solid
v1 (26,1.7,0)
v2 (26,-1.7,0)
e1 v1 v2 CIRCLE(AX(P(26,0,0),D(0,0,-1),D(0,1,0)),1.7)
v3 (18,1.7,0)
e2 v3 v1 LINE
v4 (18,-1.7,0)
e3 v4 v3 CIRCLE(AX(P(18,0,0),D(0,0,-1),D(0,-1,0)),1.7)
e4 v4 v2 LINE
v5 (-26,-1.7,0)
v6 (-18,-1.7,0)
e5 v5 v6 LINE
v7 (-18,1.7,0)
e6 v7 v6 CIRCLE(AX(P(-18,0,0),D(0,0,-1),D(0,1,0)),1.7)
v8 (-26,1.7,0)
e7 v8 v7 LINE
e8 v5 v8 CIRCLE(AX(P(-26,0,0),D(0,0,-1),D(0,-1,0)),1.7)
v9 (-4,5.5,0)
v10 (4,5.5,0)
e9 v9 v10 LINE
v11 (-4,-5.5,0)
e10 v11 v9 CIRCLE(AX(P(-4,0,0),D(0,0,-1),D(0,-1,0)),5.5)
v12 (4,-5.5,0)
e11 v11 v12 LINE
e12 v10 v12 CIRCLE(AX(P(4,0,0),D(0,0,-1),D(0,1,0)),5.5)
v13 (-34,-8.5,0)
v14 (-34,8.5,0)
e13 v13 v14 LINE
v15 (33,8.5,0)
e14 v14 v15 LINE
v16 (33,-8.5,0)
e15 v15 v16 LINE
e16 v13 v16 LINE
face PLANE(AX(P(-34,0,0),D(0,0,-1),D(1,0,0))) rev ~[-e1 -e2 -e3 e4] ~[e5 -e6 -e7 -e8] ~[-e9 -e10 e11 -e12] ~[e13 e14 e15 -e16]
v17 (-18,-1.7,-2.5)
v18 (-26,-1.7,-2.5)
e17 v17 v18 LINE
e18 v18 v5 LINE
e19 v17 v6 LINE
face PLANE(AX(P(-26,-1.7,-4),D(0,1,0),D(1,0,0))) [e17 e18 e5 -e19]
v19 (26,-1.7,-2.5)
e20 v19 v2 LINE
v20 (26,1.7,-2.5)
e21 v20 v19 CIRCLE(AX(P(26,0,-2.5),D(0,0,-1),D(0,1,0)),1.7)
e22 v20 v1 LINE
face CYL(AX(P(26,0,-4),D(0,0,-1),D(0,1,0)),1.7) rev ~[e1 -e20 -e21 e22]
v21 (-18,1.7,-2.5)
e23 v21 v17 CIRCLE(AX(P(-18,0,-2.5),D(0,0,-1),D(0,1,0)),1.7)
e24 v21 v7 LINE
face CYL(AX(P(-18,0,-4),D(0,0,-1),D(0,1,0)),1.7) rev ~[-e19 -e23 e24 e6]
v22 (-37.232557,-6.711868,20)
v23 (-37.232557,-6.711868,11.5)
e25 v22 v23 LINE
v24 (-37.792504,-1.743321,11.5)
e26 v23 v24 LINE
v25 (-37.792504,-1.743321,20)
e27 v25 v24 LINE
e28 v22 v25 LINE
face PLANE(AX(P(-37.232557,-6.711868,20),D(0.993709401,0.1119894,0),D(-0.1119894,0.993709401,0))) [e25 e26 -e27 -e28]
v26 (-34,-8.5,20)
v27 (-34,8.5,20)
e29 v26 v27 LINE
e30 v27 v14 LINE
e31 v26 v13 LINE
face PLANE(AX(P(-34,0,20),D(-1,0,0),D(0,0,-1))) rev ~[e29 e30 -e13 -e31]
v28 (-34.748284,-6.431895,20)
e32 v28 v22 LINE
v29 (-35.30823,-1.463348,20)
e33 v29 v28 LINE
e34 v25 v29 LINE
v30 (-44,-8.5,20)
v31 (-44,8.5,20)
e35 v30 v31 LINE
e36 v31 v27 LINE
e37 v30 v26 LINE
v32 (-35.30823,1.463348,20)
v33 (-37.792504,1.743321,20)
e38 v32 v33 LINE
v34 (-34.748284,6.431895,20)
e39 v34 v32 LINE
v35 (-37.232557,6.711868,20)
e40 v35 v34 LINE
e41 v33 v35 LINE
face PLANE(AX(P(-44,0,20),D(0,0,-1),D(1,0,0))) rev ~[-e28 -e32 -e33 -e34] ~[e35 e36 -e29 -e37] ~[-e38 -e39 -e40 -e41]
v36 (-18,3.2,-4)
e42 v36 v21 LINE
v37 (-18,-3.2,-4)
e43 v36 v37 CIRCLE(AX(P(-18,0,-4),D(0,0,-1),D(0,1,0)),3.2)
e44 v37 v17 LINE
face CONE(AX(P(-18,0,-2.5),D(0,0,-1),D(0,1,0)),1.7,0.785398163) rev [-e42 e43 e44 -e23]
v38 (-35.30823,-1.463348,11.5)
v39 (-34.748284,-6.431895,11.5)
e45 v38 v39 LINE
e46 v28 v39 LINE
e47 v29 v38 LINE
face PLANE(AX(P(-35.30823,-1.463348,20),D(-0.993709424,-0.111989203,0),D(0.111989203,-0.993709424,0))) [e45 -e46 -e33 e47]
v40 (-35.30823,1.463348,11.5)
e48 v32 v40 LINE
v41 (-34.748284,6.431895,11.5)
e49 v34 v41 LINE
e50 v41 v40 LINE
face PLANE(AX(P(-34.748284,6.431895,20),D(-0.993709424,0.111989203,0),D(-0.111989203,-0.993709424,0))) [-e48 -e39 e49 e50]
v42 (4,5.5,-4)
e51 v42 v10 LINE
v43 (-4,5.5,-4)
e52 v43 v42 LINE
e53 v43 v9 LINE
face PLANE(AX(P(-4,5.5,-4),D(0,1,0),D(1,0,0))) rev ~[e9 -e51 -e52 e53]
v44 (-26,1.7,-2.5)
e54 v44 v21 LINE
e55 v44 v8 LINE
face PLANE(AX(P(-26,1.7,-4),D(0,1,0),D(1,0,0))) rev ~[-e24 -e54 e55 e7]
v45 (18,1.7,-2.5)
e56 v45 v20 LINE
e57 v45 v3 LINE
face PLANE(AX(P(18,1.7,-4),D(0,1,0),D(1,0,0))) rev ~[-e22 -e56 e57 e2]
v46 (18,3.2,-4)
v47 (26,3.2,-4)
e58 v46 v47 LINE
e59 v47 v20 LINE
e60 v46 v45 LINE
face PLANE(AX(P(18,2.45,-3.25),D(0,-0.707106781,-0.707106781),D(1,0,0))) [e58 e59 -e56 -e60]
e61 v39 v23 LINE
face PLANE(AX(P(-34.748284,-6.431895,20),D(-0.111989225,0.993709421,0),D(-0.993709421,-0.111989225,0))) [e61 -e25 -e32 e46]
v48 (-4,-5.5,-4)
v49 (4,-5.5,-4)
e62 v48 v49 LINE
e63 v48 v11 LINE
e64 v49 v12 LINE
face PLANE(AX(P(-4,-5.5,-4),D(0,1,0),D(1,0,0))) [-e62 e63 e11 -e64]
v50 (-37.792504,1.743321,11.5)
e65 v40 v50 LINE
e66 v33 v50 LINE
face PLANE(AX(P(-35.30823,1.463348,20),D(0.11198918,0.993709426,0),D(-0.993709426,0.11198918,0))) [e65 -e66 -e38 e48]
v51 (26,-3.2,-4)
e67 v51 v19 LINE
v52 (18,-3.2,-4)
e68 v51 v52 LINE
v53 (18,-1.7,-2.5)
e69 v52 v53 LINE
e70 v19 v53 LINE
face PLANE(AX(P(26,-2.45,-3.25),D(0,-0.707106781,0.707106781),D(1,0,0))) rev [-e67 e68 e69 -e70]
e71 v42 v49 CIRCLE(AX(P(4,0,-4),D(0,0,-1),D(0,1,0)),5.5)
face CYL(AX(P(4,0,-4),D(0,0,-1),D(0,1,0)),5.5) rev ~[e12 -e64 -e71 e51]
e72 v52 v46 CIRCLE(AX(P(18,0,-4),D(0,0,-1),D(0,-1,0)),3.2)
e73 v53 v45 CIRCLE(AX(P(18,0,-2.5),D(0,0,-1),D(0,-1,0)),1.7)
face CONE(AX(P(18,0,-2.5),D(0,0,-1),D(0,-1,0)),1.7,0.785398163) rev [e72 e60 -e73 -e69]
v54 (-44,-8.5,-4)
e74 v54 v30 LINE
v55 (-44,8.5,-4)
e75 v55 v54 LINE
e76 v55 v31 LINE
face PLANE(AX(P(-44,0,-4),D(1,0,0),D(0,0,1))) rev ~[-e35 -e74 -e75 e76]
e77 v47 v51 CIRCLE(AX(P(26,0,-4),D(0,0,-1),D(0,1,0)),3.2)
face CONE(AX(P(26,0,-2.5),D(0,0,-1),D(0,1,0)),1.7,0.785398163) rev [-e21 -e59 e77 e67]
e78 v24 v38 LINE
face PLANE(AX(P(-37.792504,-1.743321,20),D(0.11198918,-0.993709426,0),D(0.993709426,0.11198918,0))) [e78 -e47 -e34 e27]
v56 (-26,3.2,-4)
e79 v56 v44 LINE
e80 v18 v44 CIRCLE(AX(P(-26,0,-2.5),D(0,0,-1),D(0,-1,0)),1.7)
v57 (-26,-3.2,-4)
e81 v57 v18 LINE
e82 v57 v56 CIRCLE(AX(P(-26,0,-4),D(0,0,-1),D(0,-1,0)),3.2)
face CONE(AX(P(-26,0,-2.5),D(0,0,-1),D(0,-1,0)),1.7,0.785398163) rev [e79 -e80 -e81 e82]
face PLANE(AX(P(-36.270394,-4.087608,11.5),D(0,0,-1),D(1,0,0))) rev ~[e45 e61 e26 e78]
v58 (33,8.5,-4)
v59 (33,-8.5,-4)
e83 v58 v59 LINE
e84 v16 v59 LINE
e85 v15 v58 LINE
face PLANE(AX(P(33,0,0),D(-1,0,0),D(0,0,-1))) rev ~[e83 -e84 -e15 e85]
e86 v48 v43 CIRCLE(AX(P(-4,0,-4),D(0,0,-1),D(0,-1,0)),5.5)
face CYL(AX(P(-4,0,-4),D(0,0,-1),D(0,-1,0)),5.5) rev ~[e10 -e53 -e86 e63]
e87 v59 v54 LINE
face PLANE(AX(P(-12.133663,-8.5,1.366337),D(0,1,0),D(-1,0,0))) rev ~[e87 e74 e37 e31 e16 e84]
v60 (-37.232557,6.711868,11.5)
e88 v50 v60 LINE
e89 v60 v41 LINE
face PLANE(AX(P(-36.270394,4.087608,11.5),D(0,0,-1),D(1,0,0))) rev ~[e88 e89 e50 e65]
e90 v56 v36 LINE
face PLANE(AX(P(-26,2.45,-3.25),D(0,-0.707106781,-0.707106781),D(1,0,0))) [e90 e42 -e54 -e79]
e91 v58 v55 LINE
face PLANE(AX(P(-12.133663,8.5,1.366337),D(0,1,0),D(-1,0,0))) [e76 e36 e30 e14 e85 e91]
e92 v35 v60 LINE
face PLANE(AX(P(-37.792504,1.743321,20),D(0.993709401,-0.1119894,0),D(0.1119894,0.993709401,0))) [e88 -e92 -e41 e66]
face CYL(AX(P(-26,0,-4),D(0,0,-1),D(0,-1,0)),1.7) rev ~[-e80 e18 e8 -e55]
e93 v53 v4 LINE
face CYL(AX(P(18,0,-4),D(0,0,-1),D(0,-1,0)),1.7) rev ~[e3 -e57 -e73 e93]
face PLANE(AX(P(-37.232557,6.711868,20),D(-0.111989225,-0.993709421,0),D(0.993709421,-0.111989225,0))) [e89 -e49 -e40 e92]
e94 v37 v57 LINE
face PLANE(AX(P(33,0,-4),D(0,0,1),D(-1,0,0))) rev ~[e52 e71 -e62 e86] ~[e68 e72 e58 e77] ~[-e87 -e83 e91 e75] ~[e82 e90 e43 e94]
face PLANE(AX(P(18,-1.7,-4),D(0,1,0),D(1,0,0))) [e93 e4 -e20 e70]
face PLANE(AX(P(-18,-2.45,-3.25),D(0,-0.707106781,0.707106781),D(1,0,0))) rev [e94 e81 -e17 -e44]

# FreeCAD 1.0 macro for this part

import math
import FreeCAD as App
import Part
import Sketcher

V = App.Vector
Q = App.Units.Quantity


def edges_at(feature, points):
    """Names of the edges that pass closest to the given points."""
    edges = feature.Shape.Edges
    near = lambda p: min(range(len(edges)), key=lambda i: edges[i].distToShape(Part.Vertex(*p))[0])
    return sorted({f"Edge{near(p) + 1}" for p in points})


def add_polygon(sketch, points):
    """Adds a closed chain of lines whose ends are joined by coincident constraints."""
    first, n = sketch.GeometryCount, len(points)
    for a, b in zip(points, points[1:] + points[:1]):
        sketch.addGeometry(Part.LineSegment(App.Vector(*a, 0), App.Vector(*b, 0)), False)
    for i in range(n):
        sketch.addConstraint(Sketcher.Constraint("Coincident", first + i, 2, first + (i + 1) % n, 1))

doc = App.newDocument("Part")
params = doc.addObject("Spreadsheet::Sheet", "Params")
for row, (alias, value) in enumerate([
    ("sketch1_width", "77 mm"),
    ("sketch1_width2", "67 mm"),
    ("sketch1_height", "24 mm"),
    ("sketch1_height2", "4 mm"),
    ("pad1_length", "17 mm"),
    ("sketch2_radius", "1.7 mm"),
    ("sketch2_radius2", "5.5 mm"),
    ("sketch2_width", "8 mm"),
    ("sketch3_length", "5 mm"),
    ("sketch3_length2", "2.499999 mm"),
    ("pocket2_length", "8.5 mm"),
    ("chamfer_size", "1.5 mm"),
    ("chamfer2_size", "1.5 mm"),
], start=1):
    params.set(f"A{row}", alias)
    params.set(f"B{row}", "=" + value)
    params.setAlias(f"B{row}", alias)

body = doc.addObject("PartDesign::Body", "Body")

# Sketch on XZ plane
sketch1 = doc.addObject("Sketcher::SketchObject", "Sketch")
body.addObject(sketch1)
sketch1.AttachmentSupport = (doc.XZ_Plane, [""])
sketch1.MapMode = "FlatFace"
add_polygon(sketch1, [(-44, 20), (-44, -4), (33, -4), (33, 0), (-34, 0), (-34, 20)])  # lines 0-5
sketch1.addConstraint([
    Sketcher.Constraint("Vertical", 0),
    Sketcher.Constraint("Horizontal", 1),
    Sketcher.Constraint("Vertical", 2),
    Sketcher.Constraint("Horizontal", 3),
    Sketcher.Constraint("Vertical", 4),
    Sketcher.Constraint("Horizontal", 5),
    Sketcher.Constraint("PointOnObject", 2, 2, -1),
    Sketcher.Constraint("DistanceX", 1, 1, 1, 2, 77.0),
    Sketcher.Constraint("DistanceX", 3, 2, 3, 1, 67.0),
    Sketcher.Constraint("DistanceY", 0, 2, 0, 1, 24.0),
    Sketcher.Constraint("DistanceY", 2, 1, 2, 2, 4.0),
    Sketcher.Constraint("DistanceX", 0, 2, -1, 1, 44.0),
])
sketch1.setExpression("Constraints[13]", "Params.sketch1_width")
sketch1.setExpression("Constraints[14]", "Params.sketch1_width2")
sketch1.setExpression("Constraints[15]", "Params.sketch1_height")
sketch1.setExpression("Constraints[16]", "Params.sketch1_height2")
pad1 = doc.addObject("PartDesign::Pad", "Pad")
body.addObject(pad1)
pad1.Profile = sketch1
pad1.setExpression("Length", "Params.pad1_length")
pad1.Midplane = True

# Sketch on XY plane
sketch2 = doc.addObject("Sketcher::SketchObject", "Sketch001")
body.addObject(sketch2)
sketch2.AttachmentSupport = (doc.XY_Plane, [""])
sketch2.MapMode = "FlatFace"
sketch2.AttachmentOffset = App.Placement(V(0, 0, -4), App.Rotation())
sketch2.addGeometry([
    Part.ArcOfCircle(Part.Circle(V(-26, 0, 0), V(0, 0, 1), 1.7), math.radians(90), math.radians(270)),  # 0
    Part.LineSegment(V(-26, 1.7, 0), V(-18, 1.7, 0)),  # 1
    Part.ArcOfCircle(Part.Circle(V(-18, 0, 0), V(0, 0, 1), 1.7), math.radians(-90), math.radians(90)),  # 2
    Part.LineSegment(V(-18, -1.7, 0), V(-26, -1.7, 0)),  # 3
    Part.ArcOfCircle(Part.Circle(V(-4, 0, 0), V(0, 0, 1), 5.5), math.radians(90), math.radians(270)),  # 4
    Part.LineSegment(V(-4, 5.5, 0), V(4, 5.5, 0)),  # 5
    Part.ArcOfCircle(Part.Circle(V(4, 0, 0), V(0, 0, 1), 5.5), math.radians(-90), math.radians(90)),  # 6
    Part.LineSegment(V(4, -5.5, 0), V(-4, -5.5, 0)),  # 7
    Part.ArcOfCircle(Part.Circle(V(18, 0, 0), V(0, 0, 1), 1.7), math.radians(90), math.radians(270)),  # 8
    Part.LineSegment(V(18, 1.7, 0), V(26, 1.7, 0)),  # 9
    Part.ArcOfCircle(Part.Circle(V(26, 0, 0), V(0, 0, 1), 1.7), math.radians(-90), math.radians(90)),  # 10
    Part.LineSegment(V(26, -1.7, 0), V(18, -1.7, 0)),  # 11
], False)
sketch2.addConstraint([
    Sketcher.Constraint("Tangent", 0, 1, 1, 1),
    Sketcher.Constraint("Tangent", 1, 2, 2, 2),
    Sketcher.Constraint("Tangent", 2, 1, 3, 1),
    Sketcher.Constraint("Tangent", 3, 2, 0, 2),
    Sketcher.Constraint("Tangent", 4, 1, 5, 1),
    Sketcher.Constraint("Tangent", 5, 2, 6, 2),
    Sketcher.Constraint("Tangent", 6, 1, 7, 1),
    Sketcher.Constraint("Tangent", 7, 2, 4, 2),
    Sketcher.Constraint("Tangent", 8, 1, 9, 1),
    Sketcher.Constraint("Tangent", 9, 2, 10, 2),
    Sketcher.Constraint("Tangent", 10, 1, 11, 1),
    Sketcher.Constraint("Tangent", 11, 2, 8, 2),
    Sketcher.Constraint("Horizontal", 1),
    Sketcher.Constraint("Horizontal", 3),
    Sketcher.Constraint("Horizontal", 5),
    Sketcher.Constraint("Horizontal", 7),
    Sketcher.Constraint("Horizontal", 9),
    Sketcher.Constraint("Horizontal", 11),
    Sketcher.Constraint("Equal", 2, 8),
    Sketcher.Constraint("Symmetric", 4, 3, 6, 3, -1, 1),
    Sketcher.Constraint("Symmetric", 2, 3, 8, 3, -1, 1),
    Sketcher.Constraint("Symmetric", 0, 3, 10, 3, -2),
    Sketcher.Constraint("Equal", 3, 5),
    Sketcher.Constraint("Radius", 0, 1.7),
    Sketcher.Constraint("Radius", 4, 5.5),
    Sketcher.Constraint("DistanceX", 1, 1, 1, 2, 8.0),
    Sketcher.Constraint("DistanceX", 0, 3, -1, 1, 26.0),
])
sketch2.setExpression("Constraints[23]", "Params.sketch2_radius")
sketch2.setExpression("Constraints[24]", "Params.sketch2_radius2")
sketch2.setExpression("Constraints[25]", "Params.sketch2_width")
pocket1 = doc.addObject("PartDesign::Pocket", "Pocket")
body.addObject(pocket1)
pocket1.Profile = sketch2
pocket1.Type = "ThroughAll"
pocket1.Reversed = True

# Sketch on XY plane
sketch3 = doc.addObject("Sketcher::SketchObject", "Sketch002")
body.addObject(sketch3)
sketch3.AttachmentSupport = (doc.XY_Plane, [""])
sketch3.MapMode = "FlatFace"
sketch3.AttachmentOffset = App.Placement(V(0, 0, 20), App.Rotation())
add_polygon(sketch3, [(-37.2, -6.7), (-34.7, -6.4), (-35.3, -1.5), (-37.8, -1.7)])  # lines 0-3
add_polygon(sketch3, [(-37.8, 1.7), (-35.3, 1.5), (-34.7, 6.4), (-37.2, 6.7)])  # lines 4-7
sketch3.addConstraint([
    Sketcher.Constraint("Symmetric", 1, 2, 4, 2, -1),
    Sketcher.Constraint("Symmetric", 0, 2, 5, 2, -1),
    Sketcher.Constraint("Symmetric", 3, 2, 6, 2, -1),
    Sketcher.Constraint("Symmetric", 2, 2, 7, 2, -1),
    Sketcher.Constraint("Perpendicular", 0, 1),
    Sketcher.Constraint("Perpendicular", 1, 2),
    Sketcher.Constraint("Perpendicular", 2, 3),
    Sketcher.Constraint("Distance", 1, 5.0),
    Sketcher.Constraint("Distance", 0, 2.499999),
    Sketcher.Constraint("Angle", 0, Q("6.429998 deg")),
    Sketcher.Constraint("DistanceX", 1, 2, -1, 1, 35.30823),
    Sketcher.Constraint("DistanceY", 1, 2, -1, 1, 1.463348),
])
sketch3.setExpression("Constraints[15]", "Params.sketch3_length")
sketch3.setExpression("Constraints[16]", "Params.sketch3_length2")
pocket2 = doc.addObject("PartDesign::Pocket", "Pocket001")
body.addObject(pocket2)
pocket2.Profile = sketch3
pocket2.setExpression("Length", "Params.pocket2_length")
doc.recompute()

chamfer = doc.addObject("PartDesign::Chamfer", "Chamfer")
body.addObject(chamfer)
chamfer.Base = (pocket2, edges_at(pocket2, [(22, 1.7, -4)]))
chamfer.setExpression("Size", "Params.chamfer_size")
doc.recompute()

chamfer2 = doc.addObject("PartDesign::Chamfer", "Chamfer001")
body.addObject(chamfer2)
chamfer2.Base = (chamfer, edges_at(chamfer, [(-22, 1.7, -4)]))
chamfer2.setExpression("Size", "Params.chamfer2_size")

doc.recompute()
